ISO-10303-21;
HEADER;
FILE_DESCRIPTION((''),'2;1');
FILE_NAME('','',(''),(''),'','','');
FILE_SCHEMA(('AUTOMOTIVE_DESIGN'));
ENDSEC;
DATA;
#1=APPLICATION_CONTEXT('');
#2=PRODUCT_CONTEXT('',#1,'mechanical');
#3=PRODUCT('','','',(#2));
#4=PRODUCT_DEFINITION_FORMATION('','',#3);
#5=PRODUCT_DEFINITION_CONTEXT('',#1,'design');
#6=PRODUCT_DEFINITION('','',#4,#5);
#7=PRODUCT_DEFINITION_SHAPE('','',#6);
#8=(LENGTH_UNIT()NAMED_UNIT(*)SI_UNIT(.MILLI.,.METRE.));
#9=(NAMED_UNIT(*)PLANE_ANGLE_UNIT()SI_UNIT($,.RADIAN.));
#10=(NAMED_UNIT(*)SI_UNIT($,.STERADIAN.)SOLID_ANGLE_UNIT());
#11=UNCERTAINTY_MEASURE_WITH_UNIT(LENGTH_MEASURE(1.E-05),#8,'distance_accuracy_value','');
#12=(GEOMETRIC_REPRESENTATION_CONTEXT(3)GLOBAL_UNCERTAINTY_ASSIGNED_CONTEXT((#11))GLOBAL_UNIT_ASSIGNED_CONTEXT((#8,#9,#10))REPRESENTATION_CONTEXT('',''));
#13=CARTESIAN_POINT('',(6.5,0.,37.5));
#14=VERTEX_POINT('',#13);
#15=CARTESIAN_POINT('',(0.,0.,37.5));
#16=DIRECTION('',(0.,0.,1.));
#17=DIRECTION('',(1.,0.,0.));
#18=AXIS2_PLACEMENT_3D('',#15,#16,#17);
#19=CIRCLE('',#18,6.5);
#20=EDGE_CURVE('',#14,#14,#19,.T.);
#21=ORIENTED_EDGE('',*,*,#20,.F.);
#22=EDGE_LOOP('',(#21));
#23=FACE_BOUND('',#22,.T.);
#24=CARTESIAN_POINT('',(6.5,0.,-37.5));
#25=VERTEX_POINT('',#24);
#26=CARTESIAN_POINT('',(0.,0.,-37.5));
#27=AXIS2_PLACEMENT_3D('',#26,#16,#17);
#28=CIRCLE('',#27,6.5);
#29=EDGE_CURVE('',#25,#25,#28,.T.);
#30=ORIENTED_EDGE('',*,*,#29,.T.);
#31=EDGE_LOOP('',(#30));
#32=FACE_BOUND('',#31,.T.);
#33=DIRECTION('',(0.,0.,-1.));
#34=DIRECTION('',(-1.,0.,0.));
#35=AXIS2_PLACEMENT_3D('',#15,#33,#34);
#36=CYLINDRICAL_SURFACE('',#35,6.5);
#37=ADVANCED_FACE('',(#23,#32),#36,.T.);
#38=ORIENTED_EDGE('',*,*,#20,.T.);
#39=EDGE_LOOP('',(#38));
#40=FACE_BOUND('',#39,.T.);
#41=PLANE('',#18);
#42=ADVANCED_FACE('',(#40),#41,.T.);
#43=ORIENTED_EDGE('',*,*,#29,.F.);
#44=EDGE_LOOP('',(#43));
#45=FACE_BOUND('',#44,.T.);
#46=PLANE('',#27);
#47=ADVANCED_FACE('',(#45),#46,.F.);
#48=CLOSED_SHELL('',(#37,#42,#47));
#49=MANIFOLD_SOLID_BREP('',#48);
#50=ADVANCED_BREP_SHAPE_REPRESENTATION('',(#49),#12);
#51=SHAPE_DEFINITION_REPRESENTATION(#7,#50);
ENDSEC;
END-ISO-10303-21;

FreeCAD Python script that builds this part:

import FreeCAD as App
import Part
import Sketcher
from FreeCAD import Vector
Q = App.Units.Quantity

doc = App.newDocument("Part")
body = doc.addObject("PartDesign::Body", "Body")

# Sketch on XY plane
sketch1 = doc.addObject("Sketcher::SketchObject", "Sketch")
body.addObject(sketch1)
sketch1.AttachmentSupport = (doc.XY_Plane, [""])
sketch1.MapMode = "FlatFace"
sketch1.addGeometry(Part.Circle(Vector(0, 0, 0), Vector(0, 0, 1), 6.5), False)
sketch1.addConstraint([
    Sketcher.Constraint("Coincident", 0, 3, -1, 1),
    Sketcher.Constraint("Diameter", 0, Q("13 mm")),
])
pad1 = doc.addObject("PartDesign::Pad", "Pad")
body.addObject(pad1)
pad1.Profile = sketch1
pad1.Length = 75
pad1.Midplane = True

doc.recompute()
